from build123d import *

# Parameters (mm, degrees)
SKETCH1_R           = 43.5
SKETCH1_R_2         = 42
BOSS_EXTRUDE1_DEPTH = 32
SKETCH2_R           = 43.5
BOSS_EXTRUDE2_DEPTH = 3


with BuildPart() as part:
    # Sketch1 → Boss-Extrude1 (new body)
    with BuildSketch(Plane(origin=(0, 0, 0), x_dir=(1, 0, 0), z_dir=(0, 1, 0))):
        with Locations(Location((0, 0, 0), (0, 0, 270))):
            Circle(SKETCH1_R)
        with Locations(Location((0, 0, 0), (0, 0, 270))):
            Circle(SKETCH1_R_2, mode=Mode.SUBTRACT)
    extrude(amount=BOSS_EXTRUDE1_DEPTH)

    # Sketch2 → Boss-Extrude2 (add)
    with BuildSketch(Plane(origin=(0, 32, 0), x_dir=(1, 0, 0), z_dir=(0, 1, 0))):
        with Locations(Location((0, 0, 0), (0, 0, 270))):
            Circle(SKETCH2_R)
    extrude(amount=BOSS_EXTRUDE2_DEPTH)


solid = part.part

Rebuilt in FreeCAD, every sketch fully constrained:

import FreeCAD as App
import Part
import Sketcher

V = App.Vector

doc = App.newDocument("Part")
body = doc.addObject("PartDesign::Body", "Body")

# Sketch on XZ plane
sketch1 = body.newObject("Sketcher::SketchObject", "Sketch")
sketch1.AttachmentSupport = (doc.getObject("XZ_Plane"), [""])
sketch1.MapMode = "FlatFace"
sketch1.addGeometry([
    Part.Circle(V(0, 0, 0), V(0, 0, 1), 44),
    Part.Circle(V(0, 0, 0), V(0, 0, 1), 42),
], False)
sketch1.addConstraint([
    Sketcher.Constraint("Coincident", 0, 3, -1, 1),
    Sketcher.Constraint("Coincident", 1, 3, -1, 1),
    Sketcher.Constraint("Diameter", 0, 87.0),
    Sketcher.Constraint("Diameter", 1, 84.0),
])
pad1 = body.newObject("PartDesign::Pad", "Pad")
pad1.Profile = sketch1
pad1.Length = 32
pad1.Reversed = True

# Sketch on XZ plane
sketch2 = body.newObject("Sketcher::SketchObject", "Sketch001")
sketch2.AttachmentSupport = (doc.getObject("XZ_Plane"), [""])
sketch2.MapMode = "FlatFace"
sketch2.AttachmentOffset = App.Placement(V(0, 0, -32), App.Rotation())
sketch2.addGeometry(Part.Circle(V(0, 0, 0), V(0, 0, 1), 44), False)
sketch2.addConstraint([
    Sketcher.Constraint("Coincident", 0, 3, -1, 1),
    Sketcher.Constraint("Diameter", 0, 87.0),
])
pad2 = body.newObject("PartDesign::Pad", "Pad001")
pad2.Profile = sketch2
pad2.Length = 3
pad2.Reversed = True

doc.recompute()
